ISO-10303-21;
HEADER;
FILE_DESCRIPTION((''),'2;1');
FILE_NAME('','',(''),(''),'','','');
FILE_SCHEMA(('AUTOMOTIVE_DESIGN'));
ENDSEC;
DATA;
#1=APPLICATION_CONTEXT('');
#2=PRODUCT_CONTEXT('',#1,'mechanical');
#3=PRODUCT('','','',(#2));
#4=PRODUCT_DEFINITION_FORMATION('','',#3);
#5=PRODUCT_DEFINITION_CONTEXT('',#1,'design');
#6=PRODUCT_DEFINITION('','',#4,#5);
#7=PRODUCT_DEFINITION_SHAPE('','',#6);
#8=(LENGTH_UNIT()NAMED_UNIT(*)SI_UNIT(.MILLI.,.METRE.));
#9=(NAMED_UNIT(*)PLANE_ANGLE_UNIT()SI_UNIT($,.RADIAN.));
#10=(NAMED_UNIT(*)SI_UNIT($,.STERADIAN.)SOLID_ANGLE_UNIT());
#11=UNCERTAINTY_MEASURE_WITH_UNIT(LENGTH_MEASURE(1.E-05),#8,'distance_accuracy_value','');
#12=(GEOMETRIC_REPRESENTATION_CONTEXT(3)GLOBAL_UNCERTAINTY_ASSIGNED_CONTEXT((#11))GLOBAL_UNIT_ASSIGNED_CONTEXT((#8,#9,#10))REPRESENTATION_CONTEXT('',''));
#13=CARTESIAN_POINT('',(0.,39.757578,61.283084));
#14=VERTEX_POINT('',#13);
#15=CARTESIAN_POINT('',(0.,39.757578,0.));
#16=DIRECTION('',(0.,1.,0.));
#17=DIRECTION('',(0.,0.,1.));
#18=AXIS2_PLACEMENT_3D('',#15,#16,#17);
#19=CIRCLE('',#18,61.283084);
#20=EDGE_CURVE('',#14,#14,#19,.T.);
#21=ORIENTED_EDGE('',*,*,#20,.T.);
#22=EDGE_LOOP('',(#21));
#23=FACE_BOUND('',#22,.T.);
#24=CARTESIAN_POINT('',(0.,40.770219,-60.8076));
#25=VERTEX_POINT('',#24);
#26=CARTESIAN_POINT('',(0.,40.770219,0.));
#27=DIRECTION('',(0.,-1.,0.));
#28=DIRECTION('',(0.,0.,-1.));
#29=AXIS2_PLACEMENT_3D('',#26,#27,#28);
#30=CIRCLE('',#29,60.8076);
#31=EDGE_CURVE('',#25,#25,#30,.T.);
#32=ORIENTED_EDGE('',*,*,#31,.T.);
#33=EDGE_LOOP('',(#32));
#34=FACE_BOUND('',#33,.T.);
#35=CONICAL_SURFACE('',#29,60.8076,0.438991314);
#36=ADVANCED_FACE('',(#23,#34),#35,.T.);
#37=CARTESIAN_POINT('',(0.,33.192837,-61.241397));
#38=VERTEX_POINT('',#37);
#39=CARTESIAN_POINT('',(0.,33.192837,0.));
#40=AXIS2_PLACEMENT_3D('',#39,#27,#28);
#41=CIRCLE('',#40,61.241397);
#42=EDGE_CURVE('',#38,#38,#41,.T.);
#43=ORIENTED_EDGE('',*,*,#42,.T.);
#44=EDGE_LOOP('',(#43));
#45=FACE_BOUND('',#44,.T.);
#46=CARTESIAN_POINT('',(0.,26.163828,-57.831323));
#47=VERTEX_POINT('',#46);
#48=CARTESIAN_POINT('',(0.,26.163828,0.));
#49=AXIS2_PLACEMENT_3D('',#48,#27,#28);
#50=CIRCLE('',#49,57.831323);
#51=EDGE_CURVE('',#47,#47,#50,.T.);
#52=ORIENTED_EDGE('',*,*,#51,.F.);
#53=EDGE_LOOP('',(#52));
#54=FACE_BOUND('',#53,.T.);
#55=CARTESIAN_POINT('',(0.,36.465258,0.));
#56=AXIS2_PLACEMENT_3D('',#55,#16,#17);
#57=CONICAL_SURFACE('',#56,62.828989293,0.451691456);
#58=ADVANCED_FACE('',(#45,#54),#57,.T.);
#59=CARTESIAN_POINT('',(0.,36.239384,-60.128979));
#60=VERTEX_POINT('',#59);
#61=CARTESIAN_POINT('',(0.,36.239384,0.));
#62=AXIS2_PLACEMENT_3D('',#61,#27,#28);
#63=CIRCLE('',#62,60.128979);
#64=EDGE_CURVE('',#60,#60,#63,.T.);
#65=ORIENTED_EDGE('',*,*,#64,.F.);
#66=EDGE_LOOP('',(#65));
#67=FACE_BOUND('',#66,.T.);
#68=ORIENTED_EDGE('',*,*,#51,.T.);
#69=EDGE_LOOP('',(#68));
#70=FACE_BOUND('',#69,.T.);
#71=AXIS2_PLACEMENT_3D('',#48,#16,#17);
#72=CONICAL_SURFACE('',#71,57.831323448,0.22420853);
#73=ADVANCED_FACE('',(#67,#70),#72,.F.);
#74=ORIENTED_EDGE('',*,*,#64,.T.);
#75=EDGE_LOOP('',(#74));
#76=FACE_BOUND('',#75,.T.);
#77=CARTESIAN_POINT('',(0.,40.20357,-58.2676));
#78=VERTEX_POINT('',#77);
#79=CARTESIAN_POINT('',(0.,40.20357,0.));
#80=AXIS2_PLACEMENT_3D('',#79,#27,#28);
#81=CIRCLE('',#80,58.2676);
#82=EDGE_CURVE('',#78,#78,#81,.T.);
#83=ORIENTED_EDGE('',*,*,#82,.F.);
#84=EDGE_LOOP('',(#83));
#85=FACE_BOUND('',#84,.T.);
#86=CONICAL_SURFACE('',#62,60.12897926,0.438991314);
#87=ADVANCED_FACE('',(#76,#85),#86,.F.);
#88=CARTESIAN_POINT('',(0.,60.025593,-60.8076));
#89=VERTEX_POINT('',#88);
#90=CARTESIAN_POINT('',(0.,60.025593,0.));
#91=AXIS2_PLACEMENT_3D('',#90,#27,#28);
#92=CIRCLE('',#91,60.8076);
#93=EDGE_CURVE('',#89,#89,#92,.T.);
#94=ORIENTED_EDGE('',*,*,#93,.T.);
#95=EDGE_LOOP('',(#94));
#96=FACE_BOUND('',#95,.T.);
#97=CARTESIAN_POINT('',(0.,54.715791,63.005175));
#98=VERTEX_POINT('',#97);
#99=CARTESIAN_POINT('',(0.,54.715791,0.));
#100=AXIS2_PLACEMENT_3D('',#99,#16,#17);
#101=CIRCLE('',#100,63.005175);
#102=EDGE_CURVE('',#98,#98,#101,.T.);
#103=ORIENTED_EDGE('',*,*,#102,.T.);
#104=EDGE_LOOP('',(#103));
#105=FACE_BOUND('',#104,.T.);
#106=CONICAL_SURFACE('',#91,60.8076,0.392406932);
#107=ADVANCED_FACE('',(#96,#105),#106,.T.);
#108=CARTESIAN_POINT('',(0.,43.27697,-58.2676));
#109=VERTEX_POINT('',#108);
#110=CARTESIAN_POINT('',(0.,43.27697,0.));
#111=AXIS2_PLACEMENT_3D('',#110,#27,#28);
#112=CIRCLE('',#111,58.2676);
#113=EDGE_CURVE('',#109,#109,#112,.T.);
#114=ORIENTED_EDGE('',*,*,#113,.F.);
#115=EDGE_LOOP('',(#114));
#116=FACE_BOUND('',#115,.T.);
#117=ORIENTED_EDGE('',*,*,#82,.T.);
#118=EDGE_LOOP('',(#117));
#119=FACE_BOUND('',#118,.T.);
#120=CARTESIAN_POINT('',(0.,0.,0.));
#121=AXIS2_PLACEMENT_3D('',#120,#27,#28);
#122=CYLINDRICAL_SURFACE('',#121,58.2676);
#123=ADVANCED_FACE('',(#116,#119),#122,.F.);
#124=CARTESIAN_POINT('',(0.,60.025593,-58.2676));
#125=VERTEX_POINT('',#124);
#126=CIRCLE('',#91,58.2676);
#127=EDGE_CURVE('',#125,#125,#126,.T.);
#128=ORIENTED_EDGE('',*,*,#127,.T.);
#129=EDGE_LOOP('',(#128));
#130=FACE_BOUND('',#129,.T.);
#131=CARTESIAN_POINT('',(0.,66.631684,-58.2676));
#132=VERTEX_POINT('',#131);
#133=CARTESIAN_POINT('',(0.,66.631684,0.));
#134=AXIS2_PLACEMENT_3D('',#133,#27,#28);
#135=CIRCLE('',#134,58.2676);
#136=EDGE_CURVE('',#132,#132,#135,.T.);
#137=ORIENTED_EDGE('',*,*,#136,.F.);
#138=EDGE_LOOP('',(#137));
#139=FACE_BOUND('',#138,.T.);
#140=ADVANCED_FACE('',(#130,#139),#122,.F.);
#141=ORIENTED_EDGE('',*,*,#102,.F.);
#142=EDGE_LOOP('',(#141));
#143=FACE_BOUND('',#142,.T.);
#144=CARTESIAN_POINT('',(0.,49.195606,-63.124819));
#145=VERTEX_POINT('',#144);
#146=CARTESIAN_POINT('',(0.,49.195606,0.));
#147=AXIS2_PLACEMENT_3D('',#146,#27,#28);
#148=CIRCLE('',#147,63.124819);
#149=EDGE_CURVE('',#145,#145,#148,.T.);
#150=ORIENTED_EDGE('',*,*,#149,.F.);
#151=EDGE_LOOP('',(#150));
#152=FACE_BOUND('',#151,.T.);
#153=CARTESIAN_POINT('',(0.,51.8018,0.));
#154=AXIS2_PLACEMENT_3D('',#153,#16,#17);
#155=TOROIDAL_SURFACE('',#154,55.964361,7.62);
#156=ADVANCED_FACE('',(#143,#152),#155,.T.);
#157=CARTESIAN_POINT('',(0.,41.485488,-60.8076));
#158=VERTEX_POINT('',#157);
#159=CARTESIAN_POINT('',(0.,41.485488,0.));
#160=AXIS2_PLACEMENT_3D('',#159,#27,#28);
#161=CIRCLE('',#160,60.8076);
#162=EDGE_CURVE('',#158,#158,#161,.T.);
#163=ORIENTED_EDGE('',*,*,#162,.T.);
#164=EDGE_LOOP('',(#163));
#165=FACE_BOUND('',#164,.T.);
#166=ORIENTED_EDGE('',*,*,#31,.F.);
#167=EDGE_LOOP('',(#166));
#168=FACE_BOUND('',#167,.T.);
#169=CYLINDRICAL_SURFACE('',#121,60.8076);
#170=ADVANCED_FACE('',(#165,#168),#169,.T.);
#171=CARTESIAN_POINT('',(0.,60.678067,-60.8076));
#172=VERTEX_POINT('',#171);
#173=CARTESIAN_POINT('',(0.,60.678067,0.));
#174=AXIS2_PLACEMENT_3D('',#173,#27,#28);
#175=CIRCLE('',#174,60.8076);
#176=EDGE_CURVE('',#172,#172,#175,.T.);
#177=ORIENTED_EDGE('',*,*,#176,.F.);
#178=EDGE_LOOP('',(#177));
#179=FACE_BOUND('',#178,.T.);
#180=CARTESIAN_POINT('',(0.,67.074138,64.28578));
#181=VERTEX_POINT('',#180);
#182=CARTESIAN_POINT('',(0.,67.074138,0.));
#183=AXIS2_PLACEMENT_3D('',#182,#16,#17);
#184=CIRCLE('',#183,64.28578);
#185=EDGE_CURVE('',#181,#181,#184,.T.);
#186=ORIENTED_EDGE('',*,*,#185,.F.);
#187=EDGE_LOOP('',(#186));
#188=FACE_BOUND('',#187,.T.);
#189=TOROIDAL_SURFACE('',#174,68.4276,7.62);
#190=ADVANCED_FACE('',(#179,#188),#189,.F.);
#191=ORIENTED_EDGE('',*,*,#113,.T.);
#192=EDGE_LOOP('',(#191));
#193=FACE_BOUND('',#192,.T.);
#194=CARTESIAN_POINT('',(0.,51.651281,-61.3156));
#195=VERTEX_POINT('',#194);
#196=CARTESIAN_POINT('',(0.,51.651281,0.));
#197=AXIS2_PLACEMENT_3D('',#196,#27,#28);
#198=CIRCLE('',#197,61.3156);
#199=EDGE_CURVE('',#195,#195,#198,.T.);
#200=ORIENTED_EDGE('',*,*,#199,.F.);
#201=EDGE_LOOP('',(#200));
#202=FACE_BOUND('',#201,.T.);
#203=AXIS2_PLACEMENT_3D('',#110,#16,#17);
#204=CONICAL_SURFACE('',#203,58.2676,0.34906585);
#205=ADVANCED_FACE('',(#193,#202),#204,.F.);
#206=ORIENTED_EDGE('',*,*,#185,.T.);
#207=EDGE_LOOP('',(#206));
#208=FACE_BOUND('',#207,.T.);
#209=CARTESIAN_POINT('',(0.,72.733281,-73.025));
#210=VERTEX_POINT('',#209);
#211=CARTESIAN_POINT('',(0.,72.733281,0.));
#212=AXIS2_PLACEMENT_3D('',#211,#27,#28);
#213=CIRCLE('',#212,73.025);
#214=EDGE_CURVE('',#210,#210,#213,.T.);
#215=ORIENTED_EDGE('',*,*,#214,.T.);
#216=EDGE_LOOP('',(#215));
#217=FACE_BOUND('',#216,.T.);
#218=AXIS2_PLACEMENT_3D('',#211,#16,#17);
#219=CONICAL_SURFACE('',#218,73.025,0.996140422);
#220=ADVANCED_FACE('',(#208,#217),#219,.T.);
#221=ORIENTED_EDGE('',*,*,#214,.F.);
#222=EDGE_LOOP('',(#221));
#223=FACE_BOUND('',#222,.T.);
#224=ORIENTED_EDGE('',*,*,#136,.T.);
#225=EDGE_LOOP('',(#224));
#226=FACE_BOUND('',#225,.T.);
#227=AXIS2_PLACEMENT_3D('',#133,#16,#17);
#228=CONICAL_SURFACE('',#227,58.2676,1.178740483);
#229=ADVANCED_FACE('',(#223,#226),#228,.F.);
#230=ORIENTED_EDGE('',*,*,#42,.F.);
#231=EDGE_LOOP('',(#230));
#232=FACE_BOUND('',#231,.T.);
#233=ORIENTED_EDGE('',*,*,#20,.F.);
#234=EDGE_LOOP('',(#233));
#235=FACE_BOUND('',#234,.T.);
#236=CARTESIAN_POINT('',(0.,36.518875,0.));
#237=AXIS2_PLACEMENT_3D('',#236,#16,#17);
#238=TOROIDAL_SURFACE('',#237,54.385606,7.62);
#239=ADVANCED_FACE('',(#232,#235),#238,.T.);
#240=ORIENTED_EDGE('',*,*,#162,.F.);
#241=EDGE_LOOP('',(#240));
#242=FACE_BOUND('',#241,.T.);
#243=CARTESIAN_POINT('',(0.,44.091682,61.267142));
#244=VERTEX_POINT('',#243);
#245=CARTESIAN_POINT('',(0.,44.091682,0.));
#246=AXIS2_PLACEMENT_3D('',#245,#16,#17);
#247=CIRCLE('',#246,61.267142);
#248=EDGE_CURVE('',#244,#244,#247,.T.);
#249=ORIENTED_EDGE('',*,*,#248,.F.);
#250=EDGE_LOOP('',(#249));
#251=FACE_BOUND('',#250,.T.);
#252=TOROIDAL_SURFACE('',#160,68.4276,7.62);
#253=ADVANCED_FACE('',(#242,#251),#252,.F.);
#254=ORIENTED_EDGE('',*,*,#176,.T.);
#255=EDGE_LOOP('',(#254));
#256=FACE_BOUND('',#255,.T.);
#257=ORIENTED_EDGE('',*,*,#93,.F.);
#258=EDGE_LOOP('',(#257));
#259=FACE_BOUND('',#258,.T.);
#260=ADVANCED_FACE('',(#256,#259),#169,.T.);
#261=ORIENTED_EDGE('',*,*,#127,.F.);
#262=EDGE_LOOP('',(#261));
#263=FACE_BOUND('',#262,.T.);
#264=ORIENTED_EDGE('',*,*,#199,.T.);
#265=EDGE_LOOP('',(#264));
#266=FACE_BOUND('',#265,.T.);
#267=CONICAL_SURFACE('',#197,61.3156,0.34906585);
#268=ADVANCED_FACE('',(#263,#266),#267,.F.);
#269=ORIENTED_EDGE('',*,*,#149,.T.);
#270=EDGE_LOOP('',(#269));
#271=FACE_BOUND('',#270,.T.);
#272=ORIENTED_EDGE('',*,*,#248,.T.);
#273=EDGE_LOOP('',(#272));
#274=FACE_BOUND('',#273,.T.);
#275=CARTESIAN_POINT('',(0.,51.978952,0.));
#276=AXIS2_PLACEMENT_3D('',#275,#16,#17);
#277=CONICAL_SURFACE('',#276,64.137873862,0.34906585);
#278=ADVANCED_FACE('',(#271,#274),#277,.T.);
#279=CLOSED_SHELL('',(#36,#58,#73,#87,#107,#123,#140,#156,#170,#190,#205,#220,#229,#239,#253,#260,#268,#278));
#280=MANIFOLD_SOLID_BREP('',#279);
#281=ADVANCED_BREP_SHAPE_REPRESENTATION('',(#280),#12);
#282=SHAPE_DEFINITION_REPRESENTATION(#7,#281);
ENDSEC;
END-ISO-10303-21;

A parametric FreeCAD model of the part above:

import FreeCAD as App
import Part
import Sketcher

V = App.Vector
Q = App.Units.Quantity


def edges_at(feature, points):
    """Names of the edges that pass closest to the given points."""
    edges = feature.Shape.Edges
    near = lambda p: min(range(len(edges)), key=lambda i: edges[i].distToShape(Part.Vertex(*p))[0])
    return sorted({f"Edge{near(p) + 1}" for p in points})


def add_polygon(sketch, points):
    """Adds a closed chain of lines whose ends are joined by coincident constraints."""
    first, n = sketch.GeometryCount, len(points)
    for a, b in zip(points, points[1:] + points[:1]):
        sketch.addGeometry(Part.LineSegment(App.Vector(*a, 0), App.Vector(*b, 0)), False)
    for i in range(n):
        sketch.addConstraint(Sketcher.Constraint("Coincident", first + i, 2, first + (i + 1) % n, 1))

doc = App.newDocument("Part")
body = doc.addObject("PartDesign::Body", "Body")

# Sketch on XY plane
sketch1 = body.newObject("Sketcher::SketchObject", "Sketch")
sketch1.AttachmentSupport = (doc.getObject("XY_Plane"), [""])
sketch1.MapMode = "FlatFace"
add_polygon(sketch1, [(-58.3, 40.2), (-58.3, 43.3), (-61.3, 51.7), (-58.3, 60), (-58.3, 66.6), (-73, 72.7), (-60.8, 64.8), (-60.8, 60), (-64.1, 52), (-60.8, 42.8), (-60.8, 40.8), (-62.8, 36.5), (-57.8, 26.2), (-60.1, 36.2)])  # lines 0-13
sketch1.addConstraint(Sketcher.Constraint("Vertical", 0))
sketch1.addConstraint(Sketcher.Constraint("Vertical", 3))
sketch1.addConstraint(Sketcher.Constraint("Vertical", 6))
sketch1.addConstraint(Sketcher.Constraint("Vertical", 9))
sketch1.addConstraint(Sketcher.Constraint("Parallel", 1, 8))
sketch1.addConstraint(Sketcher.Constraint("Parallel", 10, 13))
sketch1.addConstraint(Sketcher.Constraint("Horizontal", 2, 2, 6, 2))
sketch1.addConstraint(Sketcher.Constraint("Vertical", 0, 2, 2, 2))
sketch1.addConstraint(Sketcher.Constraint("Vertical", 6, 2, 8, 2))
sketch1.addConstraint(Sketcher.Constraint("Equal", 1, 2))
sketch1.addConstraint(Sketcher.Constraint("Angle", 1, Q("110 deg")))
sketch1.addConstraint(Sketcher.Constraint("DistanceX", 5, 2, 3, 2, Q("0.1 in")))
sketch1.addConstraint(Sketcher.Constraint("DistanceY", 0, 1, 0, 2, Q("0.121 in")))
sketch1.addConstraint(Sketcher.Constraint("Angle", 11, Q("-64.119986 deg")))
sketch1.addConstraint(Sketcher.Constraint("DistanceX", 1, 2, 0, 2, Q("0.12 in")))
sketch1.addConstraint(Sketcher.Constraint("DistanceY", 1, 2, 4, 2, Q("0.83 in")))
sketch1.addConstraint(Sketcher.Constraint("DistanceX", 0, 2, -1, 1, Q("2.294 in")))
sketch1.addConstraint(Sketcher.Constraint("DistanceX", 4, 2, -1, 1, Q("2.875 in")))
sketch1.addConstraint(Sketcher.Constraint("DistanceY", 3, 1, 3, 2, 6.606092))
sketch1.addConstraint(Sketcher.Constraint("DistanceY", 9, 2, 9, 1, 2.058881))
sketch1.addConstraint(Sketcher.Constraint("DistanceY", -1, 1, 8, 2, 42.8291))
sketch1.addConstraint(Sketcher.Constraint("Distance", 8, 9.737069))
sketch1.addConstraint(Sketcher.Constraint("Distance", 11, 11.449722))
sketch1.addConstraint(Sketcher.Constraint("Distance", 13, 4.379441))
sketch1.addConstraint(Sketcher.Constraint("DistanceY", 6, 2, 6, 1, 4.796226))
sketch1.addConstraint(Sketcher.Constraint("DistanceY", -1, 1, 0, 2, 43.27697))
sketch1.addConstraint(Sketcher.Constraint("DistanceX", 10, 2, -1, 1, 62.828989))
sketch1.addConstraint(Sketcher.Constraint("DistanceY", -1, 1, 10, 2, 36.465258))
revolution = body.newObject("PartDesign::Revolution", "Revolution")
revolution.Profile = sketch1
revolution.ReferenceAxis = (sketch1, ["V_Axis"])
revolution.Angle = 360
doc.recompute()

fillet = body.newObject("PartDesign::Fillet", "Fillet")
fillet.Base = (revolution, edges_at(revolution, [
    (64.138, 51.979, 0),
    (60.808, 42.829, 0),
    (62.829, 36.465, 0),
    (60.808, 64.822, 0),
]))
fillet.Radius = Q("0.3 in")

doc.recompute()
